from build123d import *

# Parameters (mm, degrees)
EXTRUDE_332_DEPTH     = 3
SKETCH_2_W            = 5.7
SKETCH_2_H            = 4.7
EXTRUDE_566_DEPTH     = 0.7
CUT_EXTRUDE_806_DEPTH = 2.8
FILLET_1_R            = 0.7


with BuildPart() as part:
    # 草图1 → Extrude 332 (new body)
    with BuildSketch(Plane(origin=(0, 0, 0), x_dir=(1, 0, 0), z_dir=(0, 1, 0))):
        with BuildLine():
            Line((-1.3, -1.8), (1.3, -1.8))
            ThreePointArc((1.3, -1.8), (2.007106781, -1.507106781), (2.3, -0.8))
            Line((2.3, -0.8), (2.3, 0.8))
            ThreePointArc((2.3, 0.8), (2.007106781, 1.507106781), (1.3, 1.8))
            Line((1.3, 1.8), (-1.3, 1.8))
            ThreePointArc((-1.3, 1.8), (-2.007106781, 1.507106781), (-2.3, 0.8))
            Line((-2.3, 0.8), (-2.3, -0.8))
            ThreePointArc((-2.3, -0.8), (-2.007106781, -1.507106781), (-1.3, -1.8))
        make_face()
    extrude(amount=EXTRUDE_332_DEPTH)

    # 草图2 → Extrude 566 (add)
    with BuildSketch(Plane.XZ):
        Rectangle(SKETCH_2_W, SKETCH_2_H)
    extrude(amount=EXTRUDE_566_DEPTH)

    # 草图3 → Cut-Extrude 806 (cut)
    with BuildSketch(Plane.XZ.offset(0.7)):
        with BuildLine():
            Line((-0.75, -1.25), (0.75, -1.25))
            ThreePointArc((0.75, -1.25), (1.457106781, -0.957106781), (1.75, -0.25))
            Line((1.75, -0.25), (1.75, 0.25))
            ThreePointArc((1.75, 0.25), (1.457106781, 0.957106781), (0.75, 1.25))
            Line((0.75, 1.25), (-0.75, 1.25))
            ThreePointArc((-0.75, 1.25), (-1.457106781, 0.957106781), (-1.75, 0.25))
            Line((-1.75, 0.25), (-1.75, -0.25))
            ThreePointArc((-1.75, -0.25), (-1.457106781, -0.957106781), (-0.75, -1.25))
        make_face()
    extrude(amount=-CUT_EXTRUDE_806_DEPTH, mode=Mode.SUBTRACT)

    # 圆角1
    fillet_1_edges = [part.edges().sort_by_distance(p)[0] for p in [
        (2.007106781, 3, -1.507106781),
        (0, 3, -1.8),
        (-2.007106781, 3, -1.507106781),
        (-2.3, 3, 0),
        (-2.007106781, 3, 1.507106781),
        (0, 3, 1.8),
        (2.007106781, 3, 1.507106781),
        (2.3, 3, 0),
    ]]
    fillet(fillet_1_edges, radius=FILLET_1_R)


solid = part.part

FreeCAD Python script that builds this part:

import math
import FreeCAD as App
import Part
import Sketcher


def edges_at(feature, points):
    """Names of the edges that pass closest to the given points."""
    edges = feature.Shape.Edges
    near = lambda p: min(range(len(edges)), key=lambda i: edges[i].distToShape(Part.Vertex(*p))[0])
    return sorted({f"Edge{near(p) + 1}" for p in points})

doc = App.newDocument("Part")
body = doc.addObject("PartDesign::Body", "Body")

# Sketch on XZ plane
sketch1 = body.newObject("Sketcher::SketchObject", "Sketch")
sketch1.AttachmentSupport = (doc.getObject("XZ_Plane"), [""])
sketch1.MapMode = "FlatFace"
sketch1.addGeometry([
    Part.LineSegment(App.Vector(-1.3, 1.8, 0), App.Vector(1.3, 1.8, 0)),  # 0
    Part.ArcOfCircle(Part.Circle(App.Vector(1.3, 0.8, 0), App.Vector(0, 0, 1), 1), math.radians(0), math.radians(90)),  # 1
    Part.LineSegment(App.Vector(2.3, 0.8, 0), App.Vector(2.3, -0.8, 0)),  # 2
    Part.ArcOfCircle(Part.Circle(App.Vector(1.3, -0.8, 0), App.Vector(0, 0, 1), 1), math.radians(-90), math.radians(0)),  # 3
    Part.LineSegment(App.Vector(1.3, -1.8, 0), App.Vector(-1.3, -1.8, 0)),  # 4
    Part.ArcOfCircle(Part.Circle(App.Vector(-1.3, -0.8, 0), App.Vector(0, 0, 1), 1), math.radians(-180), math.radians(-90)),  # 5
    Part.LineSegment(App.Vector(-2.3, -0.8, 0), App.Vector(-2.3, 0.8, 0)),  # 6
    Part.ArcOfCircle(Part.Circle(App.Vector(-1.3, 0.8, 0), App.Vector(0, 0, 1), 1), math.radians(90), math.radians(180)),  # 7
], False)
sketch1.addConstraint([
    Sketcher.Constraint("Tangent", 0, 2, 1, 2),
    Sketcher.Constraint("Tangent", 1, 1, 2, 1),
    Sketcher.Constraint("Tangent", 2, 2, 3, 2),
    Sketcher.Constraint("Tangent", 3, 1, 4, 1),
    Sketcher.Constraint("Tangent", 4, 2, 5, 2),
    Sketcher.Constraint("Tangent", 5, 1, 6, 1),
    Sketcher.Constraint("Tangent", 6, 2, 7, 2),
    Sketcher.Constraint("Tangent", 7, 1, 0, 1),
    Sketcher.Constraint("Horizontal", 0),
    Sketcher.Constraint("Vertical", 2),
    Sketcher.Constraint("Horizontal", 4),
    Sketcher.Constraint("Vertical", 6),
    Sketcher.Constraint("Equal", 1, 3),
    Sketcher.Constraint("Equal", 3, 5),
    Sketcher.Constraint("Equal", 5, 7),
    Sketcher.Constraint("Symmetric", 1, 3, 5, 3, -1, 1),
    Sketcher.Constraint("Radius", 1, 1.0),
    Sketcher.Constraint("DistanceX", 0, 1, 0, 2, 2.6),
    Sketcher.Constraint("DistanceY", 2, 2, 2, 1, 1.6),
])
pad1 = body.newObject("PartDesign::Pad", "Pad")
pad1.Profile = sketch1
pad1.Length = 3
pad1.Reversed = True

# Sketch on XZ plane
sketch2 = body.newObject("Sketcher::SketchObject", "Sketch001")
sketch2.AttachmentSupport = (doc.getObject("XZ_Plane"), [""])
sketch2.MapMode = "FlatFace"
sketch2.addGeometry([
    Part.LineSegment(App.Vector(-2.9, 2.4, 0), App.Vector(-2.9, -2.4, 0)),
    Part.LineSegment(App.Vector(-2.9, -2.4, 0), App.Vector(2.9, -2.4, 0)),
    Part.LineSegment(App.Vector(2.9, -2.4, 0), App.Vector(2.9, 2.4, 0)),
    Part.LineSegment(App.Vector(2.9, 2.4, 0), App.Vector(-2.9, 2.4, 0)),
], False)
sketch2.addConstraint([
    Sketcher.Constraint("Coincident", 0, 2, 1, 1),
    Sketcher.Constraint("Coincident", 1, 2, 2, 1),
    Sketcher.Constraint("Coincident", 2, 2, 3, 1),
    Sketcher.Constraint("Coincident", 3, 2, 0, 1),
    Sketcher.Constraint("Vertical", 0),
    Sketcher.Constraint("Horizontal", 1),
    Sketcher.Constraint("Vertical", 2),
    Sketcher.Constraint("Horizontal", 3),
    Sketcher.Constraint("Symmetric", 0, 2, 2, 2, -1, 1),
    Sketcher.Constraint("DistanceX", 1, 1, 1, 2, 5.7),
    Sketcher.Constraint("DistanceY", 0, 2, 0, 1, 4.7),
])
pad2 = body.newObject("PartDesign::Pad", "Pad001")
pad2.Profile = sketch2
pad2.Length = 0.7

# Sketch on XZ plane
sketch3 = body.newObject("Sketcher::SketchObject", "Sketch002")
sketch3.AttachmentSupport = (doc.getObject("XZ_Plane"), [""])
sketch3.MapMode = "FlatFace"
sketch3.AttachmentOffset = App.Placement(App.Vector(0, 0, 0.7), App.Rotation())
sketch3.addGeometry([
    Part.LineSegment(App.Vector(-0.8, -1.2, 0), App.Vector(0.8, -1.2, 0)),  # 0
    Part.ArcOfCircle(Part.Circle(App.Vector(0.7, -0.2, 0), App.Vector(0, 0, 1), 1), math.radians(-90), math.radians(0)),  # 1
    Part.LineSegment(App.Vector(1.8, -0.2, 0), App.Vector(1.8, 0.2, 0)),  # 2
    Part.ArcOfCircle(Part.Circle(App.Vector(0.7, 0.2, 0), App.Vector(0, 0, 1), 1), math.radians(0), math.radians(90)),  # 3
    Part.LineSegment(App.Vector(0.8, 1.2, 0), App.Vector(-0.8, 1.2, 0)),  # 4
    Part.ArcOfCircle(Part.Circle(App.Vector(-0.7, 0.2, 0), App.Vector(0, 0, 1), 1), math.radians(90), math.radians(180)),  # 5
    Part.LineSegment(App.Vector(-1.8, 0.2, 0), App.Vector(-1.8, -0.2, 0)),  # 6
    Part.ArcOfCircle(Part.Circle(App.Vector(-0.7, -0.2, 0), App.Vector(0, 0, 1), 1), math.radians(-180), math.radians(-90)),  # 7
], False)
sketch3.addConstraint([
    Sketcher.Constraint("Tangent", 0, 2, 1, 1),
    Sketcher.Constraint("Tangent", 1, 2, 2, 1),
    Sketcher.Constraint("Tangent", 2, 2, 3, 1),
    Sketcher.Constraint("Tangent", 3, 2, 4, 1),
    Sketcher.Constraint("Tangent", 4, 2, 5, 1),
    Sketcher.Constraint("Tangent", 5, 2, 6, 1),
    Sketcher.Constraint("Tangent", 6, 2, 7, 1),
    Sketcher.Constraint("Tangent", 7, 2, 0, 1),
    Sketcher.Constraint("Horizontal", 0),
    Sketcher.Constraint("Vertical", 2),
    Sketcher.Constraint("Horizontal", 4),
    Sketcher.Constraint("Vertical", 6),
    Sketcher.Constraint("Equal", 1, 3),
    Sketcher.Constraint("Equal", 3, 5),
    Sketcher.Constraint("Equal", 5, 7),
    Sketcher.Constraint("Symmetric", 1, 3, 5, 3, -1, 1),
    Sketcher.Constraint("Radius", 1, 1.0),
    Sketcher.Constraint("DistanceX", 0, 1, 0, 2, 1.5),
    Sketcher.Constraint("DistanceY", 2, 1, 2, 2, 0.5),
])
pocket1 = body.newObject("PartDesign::Pocket", "Pocket")
pocket1.Profile = sketch3
pocket1.Length = 2.8
doc.recompute()

fillet = body.newObject("PartDesign::Fillet", "Fillet")
fillet.Base = (pocket1, edges_at(pocket1, [
    (2.007, 3, -1.507),
    (0, 3, -1.8),
    (-2.007, 3, -1.507),
    (-2.3, 3, 0),
    (-2.007, 3, 1.507),
    (0, 3, 1.8),
    (2.007, 3, 1.507),
    (2.3, 3, 0),
]))
fillet.Radius = 0.7

doc.recompute()
